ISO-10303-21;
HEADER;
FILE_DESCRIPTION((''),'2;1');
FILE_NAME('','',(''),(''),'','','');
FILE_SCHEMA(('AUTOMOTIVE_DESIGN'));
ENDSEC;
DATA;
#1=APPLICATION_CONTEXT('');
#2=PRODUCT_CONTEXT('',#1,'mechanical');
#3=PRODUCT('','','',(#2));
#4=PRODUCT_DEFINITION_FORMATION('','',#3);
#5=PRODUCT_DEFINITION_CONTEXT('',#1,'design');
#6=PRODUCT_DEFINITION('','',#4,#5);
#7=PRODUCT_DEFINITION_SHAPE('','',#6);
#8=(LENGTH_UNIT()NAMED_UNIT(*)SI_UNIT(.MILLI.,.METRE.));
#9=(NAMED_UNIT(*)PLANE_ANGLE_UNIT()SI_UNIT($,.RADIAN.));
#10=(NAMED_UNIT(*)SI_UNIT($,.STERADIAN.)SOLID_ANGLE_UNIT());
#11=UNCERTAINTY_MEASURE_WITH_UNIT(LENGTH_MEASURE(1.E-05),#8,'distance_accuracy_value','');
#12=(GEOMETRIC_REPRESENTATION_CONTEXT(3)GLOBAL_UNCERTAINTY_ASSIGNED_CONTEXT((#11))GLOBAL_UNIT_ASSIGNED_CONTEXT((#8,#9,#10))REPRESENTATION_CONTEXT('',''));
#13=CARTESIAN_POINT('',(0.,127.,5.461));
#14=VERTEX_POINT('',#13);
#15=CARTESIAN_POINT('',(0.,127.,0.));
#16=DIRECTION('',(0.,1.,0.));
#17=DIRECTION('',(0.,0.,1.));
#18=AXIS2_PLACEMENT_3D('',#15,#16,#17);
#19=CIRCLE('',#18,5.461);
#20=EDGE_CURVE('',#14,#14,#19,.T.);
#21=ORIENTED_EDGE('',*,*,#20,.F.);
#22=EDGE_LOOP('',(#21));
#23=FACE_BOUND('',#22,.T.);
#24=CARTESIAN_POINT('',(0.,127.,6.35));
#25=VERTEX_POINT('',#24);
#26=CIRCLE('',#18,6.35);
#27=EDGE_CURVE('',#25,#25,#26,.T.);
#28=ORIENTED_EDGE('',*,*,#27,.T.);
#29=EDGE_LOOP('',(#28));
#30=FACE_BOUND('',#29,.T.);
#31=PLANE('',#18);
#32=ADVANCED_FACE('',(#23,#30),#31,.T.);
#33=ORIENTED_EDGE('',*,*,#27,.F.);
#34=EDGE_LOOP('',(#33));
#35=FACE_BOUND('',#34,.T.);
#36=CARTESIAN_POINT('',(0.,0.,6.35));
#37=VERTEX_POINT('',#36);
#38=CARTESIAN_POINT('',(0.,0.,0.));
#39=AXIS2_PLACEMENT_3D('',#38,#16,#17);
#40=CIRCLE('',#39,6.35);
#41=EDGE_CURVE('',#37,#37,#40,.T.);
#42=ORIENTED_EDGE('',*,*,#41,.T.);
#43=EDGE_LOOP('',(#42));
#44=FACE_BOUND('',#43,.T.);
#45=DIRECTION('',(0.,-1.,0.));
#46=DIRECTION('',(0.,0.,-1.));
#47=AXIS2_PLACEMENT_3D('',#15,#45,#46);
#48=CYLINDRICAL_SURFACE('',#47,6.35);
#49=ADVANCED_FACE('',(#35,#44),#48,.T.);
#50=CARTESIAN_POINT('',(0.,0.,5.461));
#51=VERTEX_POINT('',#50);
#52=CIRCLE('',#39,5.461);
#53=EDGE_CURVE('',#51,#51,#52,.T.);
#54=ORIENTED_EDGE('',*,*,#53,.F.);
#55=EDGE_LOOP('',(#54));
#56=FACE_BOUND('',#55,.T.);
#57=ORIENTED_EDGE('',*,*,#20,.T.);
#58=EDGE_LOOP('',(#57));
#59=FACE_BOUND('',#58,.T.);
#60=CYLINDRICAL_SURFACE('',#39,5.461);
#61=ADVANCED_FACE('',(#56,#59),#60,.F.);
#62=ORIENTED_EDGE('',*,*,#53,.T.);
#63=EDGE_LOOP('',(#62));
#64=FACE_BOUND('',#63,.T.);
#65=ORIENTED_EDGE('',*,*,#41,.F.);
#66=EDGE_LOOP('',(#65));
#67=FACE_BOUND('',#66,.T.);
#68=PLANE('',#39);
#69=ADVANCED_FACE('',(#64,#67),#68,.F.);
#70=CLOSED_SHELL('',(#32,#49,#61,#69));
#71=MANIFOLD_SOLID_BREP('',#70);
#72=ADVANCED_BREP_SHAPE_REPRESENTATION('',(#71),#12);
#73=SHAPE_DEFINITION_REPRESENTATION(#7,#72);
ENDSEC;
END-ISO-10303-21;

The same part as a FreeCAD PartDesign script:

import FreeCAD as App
import Part
import Sketcher
from FreeCAD import Vector
Q = App.Units.Quantity

doc = App.newDocument("Part")
body = doc.addObject("PartDesign::Body", "Body")

# Sketch on XZ plane
sketch1 = body.newObject("Sketcher::SketchObject", "Sketch")
sketch1.AttachmentSupport = (doc.getObject("XZ_Plane"), [""])
sketch1.MapMode = "FlatFace"
sketch1.addGeometry(Part.Circle(Vector(0, 0, 0), Vector(0, 0, 1), 6), False)
sketch1.addConstraint([
    Sketcher.Constraint("Coincident", 0, 3, -1, 1),
    Sketcher.Constraint("Diameter", 0, Q("0.5 in")),
])
pad1 = body.newObject("PartDesign::Pad", "Pad")
pad1.Profile = sketch1
pad1.Length = Q("5 in")
pad1.Reversed = True

# Sketch on XZ plane
sketch2 = body.newObject("Sketcher::SketchObject", "Sketch001")
sketch2.AttachmentSupport = (doc.getObject("XZ_Plane"), [""])
sketch2.MapMode = "FlatFace"
sketch2.AttachmentOffset = App.Placement(Vector(0, 0, -5 * 25.4), App.Rotation())
sketch2.addGeometry(Part.Circle(Vector(0, 0, 0), Vector(0, 0, 1), 5), False)
sketch2.addConstraint([
    Sketcher.Constraint("Coincident", 0, 3, -1, 1),
    Sketcher.Constraint("Diameter", 0, Q("0.43 in")),
])
pocket1 = body.newObject("PartDesign::Pocket", "Pocket")
pocket1.Profile = sketch2
pocket1.Length = Q("5 in")
pocket1.Reversed = True

doc.recompute()
